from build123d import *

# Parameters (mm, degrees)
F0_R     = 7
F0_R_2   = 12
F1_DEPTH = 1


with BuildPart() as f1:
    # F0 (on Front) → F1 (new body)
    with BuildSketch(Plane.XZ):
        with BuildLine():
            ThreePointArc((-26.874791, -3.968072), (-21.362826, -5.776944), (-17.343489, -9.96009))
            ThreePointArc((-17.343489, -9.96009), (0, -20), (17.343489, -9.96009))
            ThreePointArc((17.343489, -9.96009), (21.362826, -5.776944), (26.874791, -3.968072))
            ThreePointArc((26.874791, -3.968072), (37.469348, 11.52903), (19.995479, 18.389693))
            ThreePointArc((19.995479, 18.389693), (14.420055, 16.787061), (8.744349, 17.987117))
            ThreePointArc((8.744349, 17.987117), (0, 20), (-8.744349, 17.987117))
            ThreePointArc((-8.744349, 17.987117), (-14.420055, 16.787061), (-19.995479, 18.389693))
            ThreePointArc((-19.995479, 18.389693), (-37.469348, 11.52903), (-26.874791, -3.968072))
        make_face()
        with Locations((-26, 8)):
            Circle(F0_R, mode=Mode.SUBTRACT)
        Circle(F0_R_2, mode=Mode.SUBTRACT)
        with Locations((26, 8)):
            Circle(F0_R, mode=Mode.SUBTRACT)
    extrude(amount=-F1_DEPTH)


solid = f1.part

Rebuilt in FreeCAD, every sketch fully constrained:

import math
import FreeCAD as App
import Part
import Sketcher

V = App.Vector

doc = App.newDocument("Part")
body = doc.addObject("PartDesign::Body", "Body")

# Sketch on XZ plane
sketch1 = body.newObject("Sketcher::SketchObject", "Sketch")
sketch1.AttachmentSupport = (doc.getObject("XZ_Plane"), [""])
sketch1.MapMode = "FlatFace"
sketch1.addGeometry([
    Part.ArcOfCircle(Part.Circle(V(-28, -16, 0), V(0, 0, 1), 12), math.radians(30), math.radians(86)),  # 0
    Part.ArcOfCircle(Part.Circle(V(0, 0, 0), V(0, 0, 1), 20), math.radians(-150), math.radians(-30)),  # 1
    Part.ArcOfCircle(Part.Circle(V(28, -16, 0), V(0, 0, 1), 12), math.radians(94), math.radians(150)),  # 2
    Part.ArcOfCircle(Part.Circle(V(26, 8, 0), V(0, 0, 1), 12), math.radians(-86), math.radians(120)),  # 3
    Part.ArcOfCircle(Part.Circle(V(14, 29, 0), V(0, 0, 1), 12), math.radians(-116), math.radians(-60)),  # 4
    Part.ArcOfCircle(Part.Circle(V(0, 0, 0), V(0, 0, 1), 20), math.radians(64), math.radians(116)),  # 5
    Part.ArcOfCircle(Part.Circle(V(-14, 29, 0), V(0, 0, 1), 12), math.radians(-120), math.radians(-64)),  # 6
    Part.ArcOfCircle(Part.Circle(V(-26, 8, 0), V(0, 0, 1), 12), math.radians(60), math.radians(266)),  # 7
    Part.Circle(V(0, 0, 0), V(0, 0, 1), 12),  # 8
    Part.Circle(V(-26, 8, 0), V(0, 0, 1), 7),  # 9
    Part.Circle(V(26, 8, 0), V(0, 0, 1), 7),  # 10
], False)
sketch1.addConstraint([
    Sketcher.Constraint("Tangent", 0, 1, 1, 1),
    Sketcher.Constraint("Tangent", 1, 2, 2, 2),
    Sketcher.Constraint("Tangent", 2, 1, 3, 1),
    Sketcher.Constraint("Tangent", 3, 2, 4, 2),
    Sketcher.Constraint("Tangent", 4, 1, 5, 1),
    Sketcher.Constraint("Tangent", 5, 2, 6, 2),
    Sketcher.Constraint("Tangent", 6, 1, 7, 1),
    Sketcher.Constraint("Tangent", 7, 2, 0, 2),
    Sketcher.Constraint("Coincident", 1, 3, -1, 1),
    Sketcher.Constraint("Coincident", 5, 3, -1, 1),
    Sketcher.Constraint("Coincident", 8, 3, -1, 1),
    Sketcher.Constraint("Coincident", 9, 3, 7, 3),
    Sketcher.Constraint("Coincident", 10, 3, 3, 3),
    Sketcher.Constraint("Equal", 0, 2),
    Sketcher.Constraint("Equal", 2, 3),
    Sketcher.Constraint("Equal", 3, 4),
    Sketcher.Constraint("Equal", 4, 6),
    Sketcher.Constraint("Equal", 6, 7),
    Sketcher.Constraint("Equal", 7, 8),
    Sketcher.Constraint("Equal", 9, 10),
    Sketcher.Constraint("Symmetric", 3, 3, 7, 3, -2),
    Sketcher.Constraint("Diameter", 8, 24.0),
    Sketcher.Constraint("Diameter", 9, 14.0),
    Sketcher.Constraint("Radius", 1, 20.0),
    Sketcher.Constraint("DistanceX", -1, 1, 3, 3, 26.0),
    Sketcher.Constraint("DistanceY", -1, 1, 3, 3, 8.0),
    Sketcher.Constraint("Radius", 5, 20.000004),
])
pad1 = body.newObject("PartDesign::Pad", "Pad")
pad1.Profile = sketch1
pad1.Length = 1
pad1.Reversed = True

doc.recompute()
